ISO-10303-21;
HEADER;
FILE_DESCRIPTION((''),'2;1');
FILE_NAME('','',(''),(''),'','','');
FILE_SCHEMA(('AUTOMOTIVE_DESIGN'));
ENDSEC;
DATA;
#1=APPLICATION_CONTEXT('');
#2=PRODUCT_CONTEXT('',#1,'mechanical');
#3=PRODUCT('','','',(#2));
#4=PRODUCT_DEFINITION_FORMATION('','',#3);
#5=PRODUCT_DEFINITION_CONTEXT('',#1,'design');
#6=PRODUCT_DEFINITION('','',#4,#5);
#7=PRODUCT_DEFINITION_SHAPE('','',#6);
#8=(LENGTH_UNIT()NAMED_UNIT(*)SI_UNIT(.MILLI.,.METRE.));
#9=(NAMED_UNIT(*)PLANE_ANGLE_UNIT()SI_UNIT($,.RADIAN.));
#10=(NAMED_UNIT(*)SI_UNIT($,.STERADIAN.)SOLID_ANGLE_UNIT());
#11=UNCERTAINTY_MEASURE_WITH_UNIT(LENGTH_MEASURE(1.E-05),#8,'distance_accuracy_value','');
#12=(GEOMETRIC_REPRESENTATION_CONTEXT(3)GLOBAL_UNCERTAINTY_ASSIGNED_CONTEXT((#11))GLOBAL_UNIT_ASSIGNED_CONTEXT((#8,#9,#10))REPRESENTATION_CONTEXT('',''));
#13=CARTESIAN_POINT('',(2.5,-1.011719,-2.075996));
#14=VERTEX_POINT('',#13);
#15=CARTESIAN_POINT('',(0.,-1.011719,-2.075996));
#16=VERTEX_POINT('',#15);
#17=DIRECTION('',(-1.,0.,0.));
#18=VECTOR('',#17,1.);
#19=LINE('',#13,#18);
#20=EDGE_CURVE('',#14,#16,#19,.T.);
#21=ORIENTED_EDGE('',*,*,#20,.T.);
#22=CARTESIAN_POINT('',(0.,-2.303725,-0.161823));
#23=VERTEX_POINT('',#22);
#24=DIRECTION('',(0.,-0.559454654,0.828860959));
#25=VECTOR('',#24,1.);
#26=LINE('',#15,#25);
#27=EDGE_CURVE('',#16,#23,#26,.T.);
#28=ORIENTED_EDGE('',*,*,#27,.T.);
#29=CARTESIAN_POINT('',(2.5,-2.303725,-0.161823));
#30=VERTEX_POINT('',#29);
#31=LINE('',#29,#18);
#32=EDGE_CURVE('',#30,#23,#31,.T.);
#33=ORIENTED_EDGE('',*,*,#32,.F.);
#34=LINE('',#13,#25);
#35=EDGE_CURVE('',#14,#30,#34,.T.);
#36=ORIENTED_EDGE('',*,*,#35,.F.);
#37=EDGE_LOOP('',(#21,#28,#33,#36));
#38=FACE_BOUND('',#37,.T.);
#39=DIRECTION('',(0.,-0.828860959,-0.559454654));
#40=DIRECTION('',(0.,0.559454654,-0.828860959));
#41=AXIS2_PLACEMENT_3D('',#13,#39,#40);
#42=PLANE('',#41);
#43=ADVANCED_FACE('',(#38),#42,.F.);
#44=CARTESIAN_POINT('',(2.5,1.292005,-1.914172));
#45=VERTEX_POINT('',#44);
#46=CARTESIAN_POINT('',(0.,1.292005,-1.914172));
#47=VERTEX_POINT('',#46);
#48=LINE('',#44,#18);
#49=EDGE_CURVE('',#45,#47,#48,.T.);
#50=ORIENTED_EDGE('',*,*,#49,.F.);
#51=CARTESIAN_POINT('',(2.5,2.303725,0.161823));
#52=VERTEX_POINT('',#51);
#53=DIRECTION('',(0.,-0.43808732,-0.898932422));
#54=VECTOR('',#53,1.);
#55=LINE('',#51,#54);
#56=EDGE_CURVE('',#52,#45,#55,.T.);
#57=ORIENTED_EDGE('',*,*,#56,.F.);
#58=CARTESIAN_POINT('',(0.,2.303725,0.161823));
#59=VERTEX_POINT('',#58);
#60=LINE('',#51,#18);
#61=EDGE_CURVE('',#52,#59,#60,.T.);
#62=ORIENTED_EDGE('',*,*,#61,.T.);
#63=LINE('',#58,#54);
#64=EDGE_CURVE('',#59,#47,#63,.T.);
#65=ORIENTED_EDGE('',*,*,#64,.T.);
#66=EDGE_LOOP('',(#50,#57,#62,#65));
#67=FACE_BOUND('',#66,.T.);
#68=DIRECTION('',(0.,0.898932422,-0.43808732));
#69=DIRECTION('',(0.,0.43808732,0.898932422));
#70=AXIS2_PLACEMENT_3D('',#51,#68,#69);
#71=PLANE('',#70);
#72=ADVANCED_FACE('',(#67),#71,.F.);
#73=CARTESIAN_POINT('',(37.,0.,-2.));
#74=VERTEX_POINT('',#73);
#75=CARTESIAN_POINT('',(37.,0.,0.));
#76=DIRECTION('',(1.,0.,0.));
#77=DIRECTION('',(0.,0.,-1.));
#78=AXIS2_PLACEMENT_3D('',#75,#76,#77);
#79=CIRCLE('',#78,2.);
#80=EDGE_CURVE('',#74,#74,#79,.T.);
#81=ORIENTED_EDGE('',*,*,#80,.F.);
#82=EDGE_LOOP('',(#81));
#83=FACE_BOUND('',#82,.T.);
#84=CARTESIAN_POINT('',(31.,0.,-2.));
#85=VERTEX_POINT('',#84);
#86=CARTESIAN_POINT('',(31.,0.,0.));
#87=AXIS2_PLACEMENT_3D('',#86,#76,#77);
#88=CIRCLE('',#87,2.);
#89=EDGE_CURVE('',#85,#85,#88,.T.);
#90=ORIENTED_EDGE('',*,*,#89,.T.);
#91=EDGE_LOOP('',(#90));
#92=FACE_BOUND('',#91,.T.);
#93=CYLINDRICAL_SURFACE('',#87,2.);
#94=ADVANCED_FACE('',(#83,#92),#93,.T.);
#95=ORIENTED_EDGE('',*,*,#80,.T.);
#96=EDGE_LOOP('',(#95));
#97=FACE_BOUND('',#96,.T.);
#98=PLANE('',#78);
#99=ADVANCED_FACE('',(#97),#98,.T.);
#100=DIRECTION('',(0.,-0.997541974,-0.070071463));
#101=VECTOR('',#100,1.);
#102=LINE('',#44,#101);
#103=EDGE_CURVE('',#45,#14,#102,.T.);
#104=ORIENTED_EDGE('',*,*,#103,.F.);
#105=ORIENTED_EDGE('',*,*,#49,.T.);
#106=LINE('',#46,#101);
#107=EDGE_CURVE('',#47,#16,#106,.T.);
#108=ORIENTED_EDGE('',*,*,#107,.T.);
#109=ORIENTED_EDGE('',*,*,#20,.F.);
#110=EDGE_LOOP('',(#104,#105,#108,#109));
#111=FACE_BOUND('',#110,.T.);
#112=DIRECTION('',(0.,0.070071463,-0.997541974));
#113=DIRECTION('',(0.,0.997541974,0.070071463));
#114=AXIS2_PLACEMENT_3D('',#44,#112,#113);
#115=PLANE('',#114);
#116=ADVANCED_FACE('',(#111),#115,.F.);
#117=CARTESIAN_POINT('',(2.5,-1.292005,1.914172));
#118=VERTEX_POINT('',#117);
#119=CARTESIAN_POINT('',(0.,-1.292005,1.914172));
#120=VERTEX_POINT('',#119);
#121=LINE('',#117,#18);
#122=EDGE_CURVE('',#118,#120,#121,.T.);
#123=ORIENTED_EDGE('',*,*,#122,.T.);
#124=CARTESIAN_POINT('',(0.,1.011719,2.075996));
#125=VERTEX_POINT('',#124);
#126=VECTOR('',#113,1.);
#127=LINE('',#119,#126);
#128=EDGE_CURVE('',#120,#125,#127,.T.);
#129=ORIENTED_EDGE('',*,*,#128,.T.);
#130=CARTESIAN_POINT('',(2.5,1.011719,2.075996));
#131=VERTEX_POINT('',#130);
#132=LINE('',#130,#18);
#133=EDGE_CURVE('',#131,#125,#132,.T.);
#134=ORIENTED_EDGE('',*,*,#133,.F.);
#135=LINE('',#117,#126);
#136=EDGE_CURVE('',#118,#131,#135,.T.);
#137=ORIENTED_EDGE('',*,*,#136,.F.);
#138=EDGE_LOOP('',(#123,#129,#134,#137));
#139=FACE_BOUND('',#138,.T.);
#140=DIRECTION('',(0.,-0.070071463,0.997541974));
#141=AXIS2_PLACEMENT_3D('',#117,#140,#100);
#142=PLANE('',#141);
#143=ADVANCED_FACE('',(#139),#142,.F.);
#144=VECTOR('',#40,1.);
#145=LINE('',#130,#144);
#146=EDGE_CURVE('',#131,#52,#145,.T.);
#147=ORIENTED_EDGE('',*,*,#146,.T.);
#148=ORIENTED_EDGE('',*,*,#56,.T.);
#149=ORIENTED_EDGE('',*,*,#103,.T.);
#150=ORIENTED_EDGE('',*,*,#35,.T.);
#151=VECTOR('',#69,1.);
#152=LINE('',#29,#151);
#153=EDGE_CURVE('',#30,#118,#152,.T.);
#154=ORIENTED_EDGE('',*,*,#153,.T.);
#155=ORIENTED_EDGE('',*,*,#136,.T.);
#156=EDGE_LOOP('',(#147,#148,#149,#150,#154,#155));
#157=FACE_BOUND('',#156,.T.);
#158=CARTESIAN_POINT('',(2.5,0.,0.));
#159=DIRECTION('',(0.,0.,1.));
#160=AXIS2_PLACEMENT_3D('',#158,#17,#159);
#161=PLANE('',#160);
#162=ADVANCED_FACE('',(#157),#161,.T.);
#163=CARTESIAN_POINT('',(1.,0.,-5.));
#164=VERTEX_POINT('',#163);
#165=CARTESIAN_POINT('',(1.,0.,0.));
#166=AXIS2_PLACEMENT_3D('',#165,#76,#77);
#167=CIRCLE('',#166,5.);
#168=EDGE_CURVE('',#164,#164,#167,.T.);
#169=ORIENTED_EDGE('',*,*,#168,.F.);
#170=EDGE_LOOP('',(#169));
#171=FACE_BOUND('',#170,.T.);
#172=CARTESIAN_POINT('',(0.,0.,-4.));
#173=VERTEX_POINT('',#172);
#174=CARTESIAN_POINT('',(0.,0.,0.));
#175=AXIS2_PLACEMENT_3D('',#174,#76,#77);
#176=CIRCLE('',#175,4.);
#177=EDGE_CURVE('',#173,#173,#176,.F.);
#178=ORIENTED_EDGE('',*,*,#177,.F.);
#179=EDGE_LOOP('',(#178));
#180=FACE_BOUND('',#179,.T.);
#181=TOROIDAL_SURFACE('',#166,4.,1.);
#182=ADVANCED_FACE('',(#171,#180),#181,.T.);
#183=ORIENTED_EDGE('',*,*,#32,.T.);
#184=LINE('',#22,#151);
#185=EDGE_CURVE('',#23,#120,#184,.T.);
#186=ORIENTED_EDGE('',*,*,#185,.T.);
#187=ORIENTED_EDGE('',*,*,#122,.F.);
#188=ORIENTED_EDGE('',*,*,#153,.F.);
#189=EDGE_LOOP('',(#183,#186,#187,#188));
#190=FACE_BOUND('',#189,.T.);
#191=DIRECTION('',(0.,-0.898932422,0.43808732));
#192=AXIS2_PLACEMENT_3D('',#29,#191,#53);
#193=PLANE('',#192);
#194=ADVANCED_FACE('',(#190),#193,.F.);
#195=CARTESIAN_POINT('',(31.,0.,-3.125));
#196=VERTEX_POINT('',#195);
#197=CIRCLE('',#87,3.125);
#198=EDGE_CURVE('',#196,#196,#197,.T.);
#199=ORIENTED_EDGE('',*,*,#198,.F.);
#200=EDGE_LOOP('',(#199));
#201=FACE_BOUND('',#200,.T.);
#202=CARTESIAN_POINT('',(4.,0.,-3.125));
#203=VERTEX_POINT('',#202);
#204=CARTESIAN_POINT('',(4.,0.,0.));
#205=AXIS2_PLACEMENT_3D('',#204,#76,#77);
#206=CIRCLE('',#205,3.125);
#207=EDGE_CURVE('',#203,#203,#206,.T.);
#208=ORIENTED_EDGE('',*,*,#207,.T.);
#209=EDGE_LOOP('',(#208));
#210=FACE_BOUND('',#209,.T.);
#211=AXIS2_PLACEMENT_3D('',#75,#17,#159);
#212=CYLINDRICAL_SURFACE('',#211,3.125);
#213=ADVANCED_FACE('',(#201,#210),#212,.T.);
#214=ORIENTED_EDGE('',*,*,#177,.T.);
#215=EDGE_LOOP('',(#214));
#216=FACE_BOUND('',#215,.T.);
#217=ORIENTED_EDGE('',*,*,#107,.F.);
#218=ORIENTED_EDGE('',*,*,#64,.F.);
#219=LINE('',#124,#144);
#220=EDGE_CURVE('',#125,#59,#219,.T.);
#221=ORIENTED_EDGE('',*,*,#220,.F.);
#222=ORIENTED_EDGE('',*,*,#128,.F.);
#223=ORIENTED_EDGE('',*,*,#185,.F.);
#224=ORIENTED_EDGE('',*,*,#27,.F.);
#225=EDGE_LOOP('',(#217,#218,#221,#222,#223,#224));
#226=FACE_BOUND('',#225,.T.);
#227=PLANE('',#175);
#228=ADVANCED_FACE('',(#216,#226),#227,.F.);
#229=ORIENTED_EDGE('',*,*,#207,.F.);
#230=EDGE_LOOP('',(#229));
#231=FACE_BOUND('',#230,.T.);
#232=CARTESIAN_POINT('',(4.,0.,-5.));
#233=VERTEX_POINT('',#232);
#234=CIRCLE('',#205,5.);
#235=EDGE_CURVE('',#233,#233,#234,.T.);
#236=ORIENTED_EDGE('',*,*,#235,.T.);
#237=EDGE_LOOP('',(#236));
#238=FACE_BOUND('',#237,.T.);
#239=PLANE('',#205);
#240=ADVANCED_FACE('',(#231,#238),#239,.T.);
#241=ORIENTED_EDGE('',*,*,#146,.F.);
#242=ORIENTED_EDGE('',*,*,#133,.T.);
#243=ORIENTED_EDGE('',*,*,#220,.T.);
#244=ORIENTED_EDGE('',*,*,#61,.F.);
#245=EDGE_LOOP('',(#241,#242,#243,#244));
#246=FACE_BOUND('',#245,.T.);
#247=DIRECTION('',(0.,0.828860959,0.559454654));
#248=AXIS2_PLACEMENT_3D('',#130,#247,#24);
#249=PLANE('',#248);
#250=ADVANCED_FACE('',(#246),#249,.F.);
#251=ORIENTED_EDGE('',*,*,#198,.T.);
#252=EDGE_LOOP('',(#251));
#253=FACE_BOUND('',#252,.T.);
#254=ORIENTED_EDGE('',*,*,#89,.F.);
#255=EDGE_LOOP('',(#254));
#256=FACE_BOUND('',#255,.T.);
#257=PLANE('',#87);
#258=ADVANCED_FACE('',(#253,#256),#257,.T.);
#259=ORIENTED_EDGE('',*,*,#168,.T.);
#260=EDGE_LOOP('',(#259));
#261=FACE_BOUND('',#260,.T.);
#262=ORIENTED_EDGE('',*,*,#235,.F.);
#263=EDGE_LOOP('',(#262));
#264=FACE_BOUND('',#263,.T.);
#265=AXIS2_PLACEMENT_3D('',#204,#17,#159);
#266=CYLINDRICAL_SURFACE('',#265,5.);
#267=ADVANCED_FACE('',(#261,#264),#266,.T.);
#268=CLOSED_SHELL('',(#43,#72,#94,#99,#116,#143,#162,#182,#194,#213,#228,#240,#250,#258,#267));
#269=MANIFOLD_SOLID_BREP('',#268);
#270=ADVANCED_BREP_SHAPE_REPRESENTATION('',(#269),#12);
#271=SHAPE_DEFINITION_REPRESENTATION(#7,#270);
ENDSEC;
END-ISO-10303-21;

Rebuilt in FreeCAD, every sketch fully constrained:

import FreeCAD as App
import Part
import Sketcher

V = App.Vector
Q = App.Units.Quantity


def edges_at(feature, points):
    """Names of the edges that pass closest to the given points."""
    edges = feature.Shape.Edges
    near = lambda p: min(range(len(edges)), key=lambda i: edges[i].distToShape(Part.Vertex(*p))[0])
    return sorted({f"Edge{near(p) + 1}" for p in points})


def add_polygon(sketch, points):
    """Adds a closed chain of lines whose ends are joined by coincident constraints."""
    first, n = sketch.GeometryCount, len(points)
    for a, b in zip(points, points[1:] + points[:1]):
        sketch.addGeometry(Part.LineSegment(App.Vector(*a, 0), App.Vector(*b, 0)), False)
    for i in range(n):
        sketch.addConstraint(Sketcher.Constraint("Coincident", first + i, 2, first + (i + 1) % n, 1))

doc = App.newDocument("Part")
body = doc.addObject("PartDesign::Body", "Body")

sketch1 = body.newObject("Sketcher::SketchObject", "Sketch")
sketch1.AttachmentSupport = (doc.getObject("YZ_Plane"), [""])
sketch1.MapMode = "FlatFace"
sketch1.addGeometry(Part.Circle(V(0, 0, 0), V(0, 0, 1), 5), False)
sketch1.addConstraint(Sketcher.Constraint("Coincident", 0, 3, -1, 1))
sketch1.addConstraint(Sketcher.Constraint("Diameter", 0, Q("10 mm")))
pad1 = body.newObject("PartDesign::Pad", "Pad")
pad1.Profile = sketch1
pad1.Length = 4
doc.recompute()

fillet = body.newObject("PartDesign::Fillet", "Fillet")
fillet.Base = (pad1, edges_at(pad1, [(0, 0, 5)]))
fillet.Radius = 1

sketch2 = body.newObject("Sketcher::SketchObject", "Sketch001")
sketch2.AttachmentSupport = (doc.getObject("YZ_Plane"), [""])
sketch2.MapMode = "FlatFace"
add_polygon(sketch2, [(1, 2.1), (2.3, 0.2), (1.3, -1.9), (-1, -2.1), (-2.3, -0.2), (-1.3, 1.9)])
sketch2.addConstraint(Sketcher.Constraint("Symmetric", 0, 2, 3, 2, -1, 1))
sketch2.addConstraint(Sketcher.Constraint("Symmetric", 1, 2, 4, 2, -1, 1))
sketch2.addConstraint(Sketcher.Constraint("Symmetric", 2, 2, 5, 2, -1, 1))
sketch2.addConstraint(Sketcher.Constraint("Equal", 0, 1))
sketch2.addConstraint(Sketcher.Constraint("Equal", 1, 2))
sketch2.addConstraint(Sketcher.Constraint("Distance", 0, Q("2.309401 mm")))
sketch2.addConstraint(Sketcher.Constraint("DistanceX", 2, 2, -1, 1, Q("1.011719 mm")))
sketch2.addConstraint(Sketcher.Constraint("DistanceX", 1, 2, 0, 2, Q("1.011719 mm")))
sketch2.addConstraint(Sketcher.Constraint("DistanceY", 2, 2, 0, 2, Q("2.237819 mm")))
pocket1 = body.newObject("PartDesign::Pocket", "Pocket")
pocket1.Profile = sketch2
pocket1.Length = 2.5
pocket1.Reversed = True

sketch3 = body.newObject("Sketcher::SketchObject", "Sketch002")
sketch3.AttachmentSupport = (doc.getObject("YZ_Plane"), [""])
sketch3.MapMode = "FlatFace"
sketch3.AttachmentOffset = App.Placement(V(0, 0, 4), App.Rotation())
sketch3.addGeometry(Part.Circle(V(0, 0, 0), V(0, 0, 1), 3.1), False)
sketch3.addConstraint(Sketcher.Constraint("Coincident", 0, 3, -1, 1))
sketch3.addConstraint(Sketcher.Constraint("Diameter", 0, Q("6.25 mm")))
pad2 = body.newObject("PartDesign::Pad", "Pad001")
pad2.Profile = sketch3
pad2.Length = 33

sketch4 = body.newObject("Sketcher::SketchObject", "Sketch003")
sketch4.AttachmentSupport = (doc.getObject("YZ_Plane"), [""])
sketch4.MapMode = "FlatFace"
sketch4.AttachmentOffset = App.Placement(V(0, 0, 37), App.Rotation())
sketch4.addGeometry(Part.Circle(V(0, 0, 0), V(0, 0, 1), 3.1), False)
sketch4.addGeometry(Part.Circle(V(0, 0, 0), V(0, 0, 1), 2), False)
sketch4.addConstraint(Sketcher.Constraint("Coincident", 0, 3, -1, 1))
sketch4.addConstraint(Sketcher.Constraint("Coincident", 1, 3, -1, 1))
sketch4.addConstraint(Sketcher.Constraint("Diameter", 1, Q("4 mm")))
sketch4.addConstraint(Sketcher.Constraint("Diameter", 0, Q("6.25 mm")))
pocket2 = body.newObject("PartDesign::Pocket", "Pocket001")
pocket2.Profile = sketch4
pocket2.Length = 6

doc.recompute()
